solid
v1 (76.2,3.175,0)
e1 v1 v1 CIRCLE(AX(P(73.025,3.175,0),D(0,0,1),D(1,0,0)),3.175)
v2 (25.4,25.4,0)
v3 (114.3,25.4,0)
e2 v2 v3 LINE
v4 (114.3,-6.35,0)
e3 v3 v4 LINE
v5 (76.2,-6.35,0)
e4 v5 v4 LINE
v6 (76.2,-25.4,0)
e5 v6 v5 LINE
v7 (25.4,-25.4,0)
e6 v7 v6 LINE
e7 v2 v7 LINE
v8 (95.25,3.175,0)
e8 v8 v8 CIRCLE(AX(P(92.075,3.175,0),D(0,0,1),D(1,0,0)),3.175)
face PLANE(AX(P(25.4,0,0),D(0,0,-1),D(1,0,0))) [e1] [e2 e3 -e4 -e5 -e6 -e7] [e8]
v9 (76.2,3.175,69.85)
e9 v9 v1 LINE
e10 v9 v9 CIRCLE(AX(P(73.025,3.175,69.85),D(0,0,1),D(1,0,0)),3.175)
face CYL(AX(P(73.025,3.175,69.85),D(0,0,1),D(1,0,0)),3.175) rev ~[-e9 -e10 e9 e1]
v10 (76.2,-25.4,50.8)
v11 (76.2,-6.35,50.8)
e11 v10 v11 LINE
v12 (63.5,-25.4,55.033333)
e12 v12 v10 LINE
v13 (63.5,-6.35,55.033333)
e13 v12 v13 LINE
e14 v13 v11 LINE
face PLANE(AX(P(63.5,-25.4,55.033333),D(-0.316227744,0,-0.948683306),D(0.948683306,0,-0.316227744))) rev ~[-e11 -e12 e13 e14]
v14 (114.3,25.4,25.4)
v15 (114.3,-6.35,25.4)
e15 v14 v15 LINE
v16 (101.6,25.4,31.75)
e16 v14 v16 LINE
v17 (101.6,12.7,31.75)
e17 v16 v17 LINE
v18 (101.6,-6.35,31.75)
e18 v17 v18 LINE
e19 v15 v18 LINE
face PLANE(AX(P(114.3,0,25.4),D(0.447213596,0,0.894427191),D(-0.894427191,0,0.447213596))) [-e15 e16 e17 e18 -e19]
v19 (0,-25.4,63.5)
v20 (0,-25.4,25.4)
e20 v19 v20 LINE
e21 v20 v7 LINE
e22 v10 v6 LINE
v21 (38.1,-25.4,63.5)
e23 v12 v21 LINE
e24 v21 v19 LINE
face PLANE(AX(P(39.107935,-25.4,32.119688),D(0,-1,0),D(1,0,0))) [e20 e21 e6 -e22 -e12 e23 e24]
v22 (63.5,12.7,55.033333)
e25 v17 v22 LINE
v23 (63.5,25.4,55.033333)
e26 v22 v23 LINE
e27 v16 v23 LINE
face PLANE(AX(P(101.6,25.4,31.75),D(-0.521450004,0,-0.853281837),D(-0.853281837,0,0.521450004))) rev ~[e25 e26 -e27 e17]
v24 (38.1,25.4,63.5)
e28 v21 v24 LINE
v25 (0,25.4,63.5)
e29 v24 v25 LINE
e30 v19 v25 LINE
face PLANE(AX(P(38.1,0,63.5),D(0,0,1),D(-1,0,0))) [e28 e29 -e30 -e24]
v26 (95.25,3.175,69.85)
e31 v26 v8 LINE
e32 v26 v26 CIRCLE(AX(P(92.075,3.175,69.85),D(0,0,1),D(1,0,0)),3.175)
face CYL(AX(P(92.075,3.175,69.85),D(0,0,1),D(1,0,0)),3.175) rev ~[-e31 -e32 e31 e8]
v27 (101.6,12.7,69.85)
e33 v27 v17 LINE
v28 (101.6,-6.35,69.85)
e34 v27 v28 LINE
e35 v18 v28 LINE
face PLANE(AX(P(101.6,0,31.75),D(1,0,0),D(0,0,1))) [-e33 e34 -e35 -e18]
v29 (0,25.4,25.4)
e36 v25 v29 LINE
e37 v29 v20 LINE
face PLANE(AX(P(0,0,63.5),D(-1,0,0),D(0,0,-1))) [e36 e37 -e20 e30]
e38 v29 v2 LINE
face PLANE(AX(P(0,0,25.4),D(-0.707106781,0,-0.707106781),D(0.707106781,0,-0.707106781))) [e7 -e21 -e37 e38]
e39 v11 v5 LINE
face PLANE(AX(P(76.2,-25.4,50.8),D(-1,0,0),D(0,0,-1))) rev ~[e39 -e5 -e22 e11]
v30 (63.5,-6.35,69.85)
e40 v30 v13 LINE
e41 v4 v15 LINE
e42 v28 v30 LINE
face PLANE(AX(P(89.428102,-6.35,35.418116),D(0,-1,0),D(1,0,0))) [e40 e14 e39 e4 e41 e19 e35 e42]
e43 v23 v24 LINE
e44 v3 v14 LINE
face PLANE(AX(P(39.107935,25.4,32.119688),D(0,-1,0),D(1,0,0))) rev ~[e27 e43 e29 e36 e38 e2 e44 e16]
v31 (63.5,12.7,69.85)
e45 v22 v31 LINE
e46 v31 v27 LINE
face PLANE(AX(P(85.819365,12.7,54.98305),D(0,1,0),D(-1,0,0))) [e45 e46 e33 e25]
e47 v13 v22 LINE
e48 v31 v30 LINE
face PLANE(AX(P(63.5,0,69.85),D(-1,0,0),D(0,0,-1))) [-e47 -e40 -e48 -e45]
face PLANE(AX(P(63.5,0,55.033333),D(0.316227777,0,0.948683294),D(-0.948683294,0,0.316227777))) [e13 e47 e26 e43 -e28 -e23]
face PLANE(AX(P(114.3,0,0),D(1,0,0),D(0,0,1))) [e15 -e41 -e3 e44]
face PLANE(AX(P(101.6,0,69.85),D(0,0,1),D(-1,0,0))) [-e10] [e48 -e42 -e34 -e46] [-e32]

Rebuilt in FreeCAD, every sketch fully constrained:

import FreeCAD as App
import Part
import Sketcher

V = App.Vector
Q = App.Units.Quantity

doc = App.newDocument("Part")
params = doc.addObject("Spreadsheet::Sheet", "Params")
for row, (alias, value) in enumerate([
    ("sketch1_height", "1 in"),
    ("sketch1_width", "3.5 in"),
    ("sketch1_width2", "1.5 in"),
    ("pad1_length", "2 in"),
    ("sketch2_height", "1 in"),
    ("sketch2_height2", "2 in"),
    ("sketch2_width", "1.5 in"),
    ("pocket1_length", "0.75 in"),
    ("sketch3_width", "1.5 in"),
    ("pocket2_length", "0.5 in"),
    ("sketch4_diameter", "0.25 in"),
], start=1):
    params.set(f"A{row}", alias)
    params.set(f"B{row}", "=" + value)
    params.setAlias(f"B{row}", alias)

body = doc.addObject("PartDesign::Body", "Body")

sketch1 = body.newObject("Sketcher::SketchObject", "Sketch")
sketch1.AttachmentSupport = (doc.getObject("XZ_Plane"), [""])
sketch1.MapMode = "FlatFace"
sketch1.addGeometry(Part.LineSegment(V(0, 64, 0), V(0, 25, 0)), False)
sketch1.addGeometry(Part.LineSegment(V(0, 25, 0), V(25, 0, 0)), False)
sketch1.addGeometry(Part.LineSegment(V(25, 0, 0), V(114, 0, 0)), False)
sketch1.addGeometry(Part.LineSegment(V(114, 0, 0), V(114, 25, 0)), False)
sketch1.addGeometry(Part.LineSegment(V(114, 25, 0), V(102, 32, 0)), False)
sketch1.addGeometry(Part.LineSegment(V(102, 32, 0), V(102, 70, 0)), False)
sketch1.addGeometry(Part.LineSegment(V(102, 70, 0), V(64, 70, 0)), False)
sketch1.addGeometry(Part.LineSegment(V(64, 70, 0), V(64, 55, 0)), False)
sketch1.addGeometry(Part.LineSegment(V(64, 55, 0), V(38, 64, 0)), False)
sketch1.addGeometry(Part.LineSegment(V(38, 64, 0), V(0, 64, 0)), False)
sketch1.addConstraint(Sketcher.Constraint("Coincident", 0, 2, 1, 1))
sketch1.addConstraint(Sketcher.Constraint("Coincident", 1, 2, 2, 1))
sketch1.addConstraint(Sketcher.Constraint("Coincident", 2, 2, 3, 1))
sketch1.addConstraint(Sketcher.Constraint("Coincident", 3, 2, 4, 1))
sketch1.addConstraint(Sketcher.Constraint("Coincident", 4, 2, 5, 1))
sketch1.addConstraint(Sketcher.Constraint("Coincident", 5, 2, 6, 1))
sketch1.addConstraint(Sketcher.Constraint("Coincident", 6, 2, 7, 1))
sketch1.addConstraint(Sketcher.Constraint("Coincident", 7, 2, 8, 1))
sketch1.addConstraint(Sketcher.Constraint("Coincident", 8, 2, 9, 1))
sketch1.addConstraint(Sketcher.Constraint("Coincident", 9, 2, 0, 1))
sketch1.addConstraint(Sketcher.Constraint("Vertical", 0))
sketch1.addConstraint(Sketcher.Constraint("Horizontal", 2))
sketch1.addConstraint(Sketcher.Constraint("Vertical", 3))
sketch1.addConstraint(Sketcher.Constraint("Vertical", 5))
sketch1.addConstraint(Sketcher.Constraint("Horizontal", 6))
sketch1.addConstraint(Sketcher.Constraint("Vertical", 7))
sketch1.addConstraint(Sketcher.Constraint("Horizontal", 9))
sketch1.addConstraint(Sketcher.Constraint("PointOnObject", 0, 2, -2))
sketch1.addConstraint(Sketcher.Constraint("PointOnObject", 1, 2, -1))
sketch1.addConstraint(Sketcher.Constraint("Horizontal", 0, 2, 3, 2))
sketch1.addConstraint(Sketcher.Constraint("Equal", 6, 9))
sketch1.addConstraint(Sketcher.Constraint("Equal", 9, 0))
sketch1.addConstraint(Sketcher.Constraint("Equal", 0, 5))
sketch1.addConstraint(Sketcher.Constraint("DistanceY", 3, 1, 3, 2, Q("1 in")))
sketch1.addConstraint(Sketcher.Constraint("DistanceX", 2, 1, 2, 2, Q("3.5 in")))
sketch1.addConstraint(Sketcher.Constraint("DistanceX", 6, 2, 6, 1, Q("1.5 in")))
sketch1.addConstraint(Sketcher.Constraint("DistanceX", -1, 1, 1, 2, Q("1 in")))
sketch1.addConstraint(Sketcher.Constraint("DistanceX", -1, 1, 4, 2, Q("4 in")))
sketch1.addConstraint(Sketcher.Constraint("DistanceY", -1, 1, 4, 2, Q("1.25 in")))
sketch1.addConstraint(Sketcher.Constraint("Distance", 8, 26.773951))
sketch1.setExpression("Constraints[23]", "Params.sketch1_height")
sketch1.setExpression("Constraints[24]", "Params.sketch1_width")
sketch1.setExpression("Constraints[25]", "Params.sketch1_width2")
pad1 = body.newObject("PartDesign::Pad", "Pad")
pad1.Profile = sketch1
pad1.setExpression("Length", "Params.pad1_length")
pad1.Midplane = True

sketch2 = body.newObject("Sketcher::SketchObject", "Sketch001")
sketch2.AttachmentSupport = (doc.getObject("XZ_Plane"), [""])
sketch2.MapMode = "FlatFace"
sketch2.AttachmentOffset = App.Placement(V(0, 0, 1 * 25.4), App.Rotation())
sketch2.addGeometry(Part.LineSegment(V(76, 0, 0), V(114, 0, 0)), False)
sketch2.addGeometry(Part.LineSegment(V(114, 0, 0), V(114, 25, 0)), False)
sketch2.addGeometry(Part.LineSegment(V(114, 25, 0), V(102, 32, 0)), False)
sketch2.addGeometry(Part.LineSegment(V(102, 32, 0), V(102, 70, 0)), False)
sketch2.addGeometry(Part.LineSegment(V(102, 70, 0), V(64, 70, 0)), False)
sketch2.addGeometry(Part.LineSegment(V(64, 70, 0), V(64, 55, 0)), False)
sketch2.addGeometry(Part.LineSegment(V(64, 55, 0), V(76, 51, 0)), False)
sketch2.addGeometry(Part.LineSegment(V(76, 51, 0), V(76, 0, 0)), False)
sketch2.addConstraint(Sketcher.Constraint("Coincident", 0, 2, 1, 1))
sketch2.addConstraint(Sketcher.Constraint("Coincident", 1, 2, 2, 1))
sketch2.addConstraint(Sketcher.Constraint("Coincident", 2, 2, 3, 1))
sketch2.addConstraint(Sketcher.Constraint("Coincident", 3, 2, 4, 1))
sketch2.addConstraint(Sketcher.Constraint("Coincident", 4, 2, 5, 1))
sketch2.addConstraint(Sketcher.Constraint("Coincident", 5, 2, 6, 1))
sketch2.addConstraint(Sketcher.Constraint("Coincident", 6, 2, 7, 1))
sketch2.addConstraint(Sketcher.Constraint("Coincident", 7, 2, 0, 1))
sketch2.addConstraint(Sketcher.Constraint("Horizontal", 0))
sketch2.addConstraint(Sketcher.Constraint("Vertical", 1))
sketch2.addConstraint(Sketcher.Constraint("Vertical", 3))
sketch2.addConstraint(Sketcher.Constraint("Horizontal", 4))
sketch2.addConstraint(Sketcher.Constraint("Vertical", 5))
sketch2.addConstraint(Sketcher.Constraint("Vertical", 7))
sketch2.addConstraint(Sketcher.Constraint("PointOnObject", 0, 2, -1))
sketch2.addConstraint(Sketcher.Constraint("Equal", 0, 4))
sketch2.addConstraint(Sketcher.Constraint("Equal", 4, 3))
sketch2.addConstraint(Sketcher.Constraint("DistanceY", 1, 1, 1, 2, Q("1 in")))
sketch2.addConstraint(Sketcher.Constraint("DistanceY", 7, 2, 7, 1, Q("2 in")))
sketch2.addConstraint(Sketcher.Constraint("DistanceX", 0, 1, 0, 2, Q("1.5 in")))
sketch2.addConstraint(Sketcher.Constraint("DistanceX", -1, 1, 2, 2, Q("4 in")))
sketch2.addConstraint(Sketcher.Constraint("DistanceX", -1, 1, 6, 2, Q("3 in")))
sketch2.addConstraint(Sketcher.Constraint("DistanceY", -1, 1, 2, 2, Q("1.25 in")))
sketch2.addConstraint(Sketcher.Constraint("DistanceY", 5, 2, 5, 1, 14.816667))
sketch2.setExpression("Constraints[17]", "Params.sketch2_height")
sketch2.setExpression("Constraints[18]", "Params.sketch2_height2")
sketch2.setExpression("Constraints[19]", "Params.sketch2_width")
pocket1 = body.newObject("PartDesign::Pocket", "Pocket")
pocket1.Profile = sketch2
pocket1.setExpression("Length", "Params.pocket1_length")

sketch3 = body.newObject("Sketcher::SketchObject", "Sketch002")
sketch3.AttachmentSupport = (doc.getObject("XZ_Plane"), [""])
sketch3.MapMode = "FlatFace"
sketch3.AttachmentOffset = App.Placement(V(0, 0, -1 * 25.4), App.Rotation())
sketch3.addGeometry(Part.LineSegment(V(102, 70, 0), V(102, 32, 0)), False)
sketch3.addGeometry(Part.LineSegment(V(102, 32, 0), V(64, 55, 0)), False)
sketch3.addGeometry(Part.LineSegment(V(64, 55, 0), V(64, 70, 0)), False)
sketch3.addGeometry(Part.LineSegment(V(64, 70, 0), V(102, 70, 0)), False)
sketch3.addConstraint(Sketcher.Constraint("Coincident", 0, 2, 1, 1))
sketch3.addConstraint(Sketcher.Constraint("Coincident", 1, 2, 2, 1))
sketch3.addConstraint(Sketcher.Constraint("Coincident", 2, 2, 3, 1))
sketch3.addConstraint(Sketcher.Constraint("Coincident", 3, 2, 0, 1))
sketch3.addConstraint(Sketcher.Constraint("Vertical", 0))
sketch3.addConstraint(Sketcher.Constraint("Vertical", 2))
sketch3.addConstraint(Sketcher.Constraint("Horizontal", 3))
sketch3.addConstraint(Sketcher.Constraint("Equal", 3, 0))
sketch3.addConstraint(Sketcher.Constraint("DistanceX", 3, 1, 3, 2, Q("1.5 in")))
sketch3.addConstraint(Sketcher.Constraint("DistanceX", -1, 1, 0, 2, Q("4 in")))
sketch3.addConstraint(Sketcher.Constraint("DistanceY", -1, 1, 0, 2, Q("1.25 in")))
sketch3.addConstraint(Sketcher.Constraint("DistanceY", 2, 1, 2, 2, 14.816667))
sketch3.setExpression("Constraints[8]", "Params.sketch3_width")
pocket2 = body.newObject("PartDesign::Pocket", "Pocket001")
pocket2.Profile = sketch3
pocket2.setExpression("Length", "Params.pocket2_length")
pocket2.Reversed = True

sketch4 = body.newObject("Sketcher::SketchObject", "Sketch003")
sketch4.AttachmentSupport = (doc.getObject("XY_Plane"), [""])
sketch4.MapMode = "FlatFace"
sketch4.AttachmentOffset = App.Placement(V(0, 0, 2.75 * 25.4), App.Rotation())
sketch4.addGeometry(Part.Circle(V(73, 3.2, 0), V(0, 0, 1), 3.2), False)
sketch4.addGeometry(Part.Circle(V(92.1, 3.2, 0), V(0, 0, 1), 3.2), False)
sketch4.addConstraint(Sketcher.Constraint("Equal", 0, 1))
sketch4.addConstraint(Sketcher.Constraint("Horizontal", 0, 3, 1, 3))
sketch4.addConstraint(Sketcher.Constraint("Diameter", 0, Q("0.25 in")))
sketch4.addConstraint(Sketcher.Constraint("DistanceX", 0, 3, 1, 3, Q("0.75 in")))
sketch4.addConstraint(Sketcher.Constraint("DistanceX", -1, 1, 0, 3, Q("2.875 in")))
sketch4.addConstraint(Sketcher.Constraint("DistanceY", -1, 1, 0, 3, Q("0.125 in")))
sketch4.setExpression("Constraints[2]", "Params.sketch4_diameter")
pocket3 = body.newObject("PartDesign::Pocket", "Pocket002")
pocket3.Profile = sketch4
pocket3.Type = "ThroughAll"

doc.recompute()
